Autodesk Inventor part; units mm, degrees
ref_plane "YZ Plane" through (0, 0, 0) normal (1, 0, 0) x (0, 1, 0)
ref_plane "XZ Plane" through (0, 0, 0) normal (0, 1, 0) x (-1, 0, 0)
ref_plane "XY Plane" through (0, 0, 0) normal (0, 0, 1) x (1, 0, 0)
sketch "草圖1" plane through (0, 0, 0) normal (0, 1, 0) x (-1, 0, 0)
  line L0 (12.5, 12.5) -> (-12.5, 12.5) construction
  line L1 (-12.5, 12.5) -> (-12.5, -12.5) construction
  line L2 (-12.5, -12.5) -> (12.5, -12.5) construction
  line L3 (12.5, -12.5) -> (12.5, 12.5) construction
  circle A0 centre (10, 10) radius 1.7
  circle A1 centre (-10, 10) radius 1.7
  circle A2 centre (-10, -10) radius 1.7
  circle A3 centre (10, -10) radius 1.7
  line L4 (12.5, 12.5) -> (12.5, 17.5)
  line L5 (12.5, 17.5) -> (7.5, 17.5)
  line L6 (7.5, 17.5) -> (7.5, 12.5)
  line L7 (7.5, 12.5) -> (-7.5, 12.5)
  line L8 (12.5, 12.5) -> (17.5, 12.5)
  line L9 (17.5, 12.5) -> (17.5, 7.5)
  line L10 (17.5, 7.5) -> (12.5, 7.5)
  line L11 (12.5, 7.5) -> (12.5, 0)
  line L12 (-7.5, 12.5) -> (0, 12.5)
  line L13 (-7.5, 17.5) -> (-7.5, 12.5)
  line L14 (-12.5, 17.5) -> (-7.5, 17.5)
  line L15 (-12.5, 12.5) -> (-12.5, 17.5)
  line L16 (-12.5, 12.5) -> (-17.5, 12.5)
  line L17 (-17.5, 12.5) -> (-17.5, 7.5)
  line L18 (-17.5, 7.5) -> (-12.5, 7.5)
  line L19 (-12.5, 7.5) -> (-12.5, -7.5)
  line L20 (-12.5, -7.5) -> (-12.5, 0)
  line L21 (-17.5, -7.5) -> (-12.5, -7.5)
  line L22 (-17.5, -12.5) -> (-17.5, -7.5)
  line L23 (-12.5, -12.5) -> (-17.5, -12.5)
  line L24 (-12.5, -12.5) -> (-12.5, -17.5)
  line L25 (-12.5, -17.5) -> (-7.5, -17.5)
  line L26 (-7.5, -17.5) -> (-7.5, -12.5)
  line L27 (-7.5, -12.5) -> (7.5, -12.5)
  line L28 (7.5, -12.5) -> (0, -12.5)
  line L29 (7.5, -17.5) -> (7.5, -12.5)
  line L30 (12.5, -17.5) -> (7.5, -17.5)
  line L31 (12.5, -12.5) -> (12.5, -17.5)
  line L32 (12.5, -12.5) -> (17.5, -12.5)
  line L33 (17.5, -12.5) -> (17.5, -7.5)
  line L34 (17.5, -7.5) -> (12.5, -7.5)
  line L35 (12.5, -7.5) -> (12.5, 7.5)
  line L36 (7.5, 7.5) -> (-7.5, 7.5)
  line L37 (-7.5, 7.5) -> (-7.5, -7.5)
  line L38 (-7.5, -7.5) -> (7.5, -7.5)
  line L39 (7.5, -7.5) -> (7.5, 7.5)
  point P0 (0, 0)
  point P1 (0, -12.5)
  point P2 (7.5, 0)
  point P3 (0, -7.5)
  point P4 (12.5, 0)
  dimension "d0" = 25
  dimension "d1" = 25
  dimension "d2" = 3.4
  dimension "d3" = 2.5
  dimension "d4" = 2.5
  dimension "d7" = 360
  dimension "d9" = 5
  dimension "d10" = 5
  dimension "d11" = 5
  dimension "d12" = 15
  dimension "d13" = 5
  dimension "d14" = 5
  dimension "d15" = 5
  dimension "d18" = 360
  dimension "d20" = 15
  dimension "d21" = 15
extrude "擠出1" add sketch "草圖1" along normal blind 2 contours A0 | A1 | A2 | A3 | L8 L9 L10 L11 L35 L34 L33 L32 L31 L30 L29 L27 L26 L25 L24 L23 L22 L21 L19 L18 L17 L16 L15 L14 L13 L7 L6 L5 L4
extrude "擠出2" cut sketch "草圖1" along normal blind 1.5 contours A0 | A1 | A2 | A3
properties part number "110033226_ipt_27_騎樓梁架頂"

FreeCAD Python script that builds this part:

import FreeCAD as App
import Part
import Sketcher
from FreeCAD import Vector

doc = App.newDocument("Part")
body = doc.addObject("PartDesign::Body", "Body")

sketch1 = body.newObject("Sketcher::SketchObject", "Sketch")
sketch1.AttachmentSupport = (doc.getObject("XZ_Plane"), [""])
sketch1.MapMode = "FlatFace"
sketch1.addGeometry([
    Part.LineSegment(Vector(-18, 12, 0), Vector(-12, 12, 0)),
    Part.LineSegment(Vector(-12, 12, 0), Vector(-12, 18, 0)),
    Part.LineSegment(Vector(-12, 18, 0), Vector(-8, 18, 0)),
    Part.LineSegment(Vector(-8, 18, 0), Vector(-8, 12, 0)),
    Part.LineSegment(Vector(-8, 12, 0), Vector(8, 12, 0)),
    Part.LineSegment(Vector(8, 12, 0), Vector(8, 18, 0)),
    Part.LineSegment(Vector(8, 18, 0), Vector(12, 18, 0)),
    Part.LineSegment(Vector(12, 18, 0), Vector(12, 12, 0)),
    Part.LineSegment(Vector(12, 12, 0), Vector(18, 12, 0)),
    Part.LineSegment(Vector(18, 12, 0), Vector(18, 8, 0)),
    Part.LineSegment(Vector(18, 8, 0), Vector(12, 8, 0)),
    Part.LineSegment(Vector(12, 8, 0), Vector(12, -8, 0)),
    Part.LineSegment(Vector(12, -8, 0), Vector(18, -8, 0)),
    Part.LineSegment(Vector(18, -8, 0), Vector(18, -12, 0)),
    Part.LineSegment(Vector(18, -12, 0), Vector(12, -12, 0)),
    Part.LineSegment(Vector(12, -12, 0), Vector(12, -18, 0)),
    Part.LineSegment(Vector(12, -18, 0), Vector(8, -18, 0)),
    Part.LineSegment(Vector(8, -18, 0), Vector(8, -12, 0)),
    Part.LineSegment(Vector(8, -12, 0), Vector(-8, -12, 0)),
    Part.LineSegment(Vector(-8, -12, 0), Vector(-8, -18, 0)),
    Part.LineSegment(Vector(-8, -18, 0), Vector(-12, -18, 0)),
    Part.LineSegment(Vector(-12, -18, 0), Vector(-12, -12, 0)),
    Part.LineSegment(Vector(-12, -12, 0), Vector(-18, -12, 0)),
    Part.LineSegment(Vector(-18, -12, 0), Vector(-18, -8, 0)),
    Part.LineSegment(Vector(-18, -8, 0), Vector(-12, -8, 0)),
    Part.LineSegment(Vector(-12, -8, 0), Vector(-12, 8, 0)),
    Part.LineSegment(Vector(-12, 8, 0), Vector(-18, 8, 0)),
    Part.LineSegment(Vector(-18, 8, 0), Vector(-18, 12, 0)),
    Part.LineSegment(Vector(8, 8, 0), Vector(-8, 8, 0)),
    Part.LineSegment(Vector(-8, 8, 0), Vector(-8, -8, 0)),
    Part.LineSegment(Vector(-8, -8, 0), Vector(8, -8, 0)),
    Part.LineSegment(Vector(8, -8, 0), Vector(8, 8, 0)),
], False)
sketch1.addConstraint([
    Sketcher.Constraint("Coincident", 0, 2, 1, 1),
    Sketcher.Constraint("Coincident", 1, 2, 2, 1),
    Sketcher.Constraint("Coincident", 2, 2, 3, 1),
    Sketcher.Constraint("Coincident", 3, 2, 4, 1),
    Sketcher.Constraint("Coincident", 4, 2, 5, 1),
    Sketcher.Constraint("Coincident", 5, 2, 6, 1),
    Sketcher.Constraint("Coincident", 6, 2, 7, 1),
    Sketcher.Constraint("Coincident", 7, 2, 8, 1),
    Sketcher.Constraint("Coincident", 8, 2, 9, 1),
    Sketcher.Constraint("Coincident", 9, 2, 10, 1),
    Sketcher.Constraint("Coincident", 10, 2, 11, 1),
    Sketcher.Constraint("Coincident", 11, 2, 12, 1),
    Sketcher.Constraint("Coincident", 12, 2, 13, 1),
    Sketcher.Constraint("Coincident", 13, 2, 14, 1),
    Sketcher.Constraint("Coincident", 14, 2, 15, 1),
    Sketcher.Constraint("Coincident", 15, 2, 16, 1),
    Sketcher.Constraint("Coincident", 16, 2, 17, 1),
    Sketcher.Constraint("Coincident", 17, 2, 18, 1),
    Sketcher.Constraint("Coincident", 18, 2, 19, 1),
    Sketcher.Constraint("Coincident", 19, 2, 20, 1),
    Sketcher.Constraint("Coincident", 20, 2, 21, 1),
    Sketcher.Constraint("Coincident", 21, 2, 22, 1),
    Sketcher.Constraint("Coincident", 22, 2, 23, 1),
    Sketcher.Constraint("Coincident", 23, 2, 24, 1),
    Sketcher.Constraint("Coincident", 24, 2, 25, 1),
    Sketcher.Constraint("Coincident", 25, 2, 26, 1),
    Sketcher.Constraint("Coincident", 26, 2, 27, 1),
    Sketcher.Constraint("Coincident", 27, 2, 0, 1),
    Sketcher.Constraint("Coincident", 28, 2, 29, 1),
    Sketcher.Constraint("Coincident", 29, 2, 30, 1),
    Sketcher.Constraint("Coincident", 30, 2, 31, 1),
    Sketcher.Constraint("Coincident", 31, 2, 28, 1),
    Sketcher.Constraint("Horizontal", 0),
    Sketcher.Constraint("Vertical", 1),
    Sketcher.Constraint("Horizontal", 2),
    Sketcher.Constraint("Vertical", 3),
    Sketcher.Constraint("Horizontal", 4),
    Sketcher.Constraint("Vertical", 5),
    Sketcher.Constraint("Horizontal", 6),
    Sketcher.Constraint("Vertical", 7),
    Sketcher.Constraint("Horizontal", 8),
    Sketcher.Constraint("Vertical", 9),
    Sketcher.Constraint("Horizontal", 10),
    Sketcher.Constraint("Vertical", 11),
    Sketcher.Constraint("Horizontal", 12),
    Sketcher.Constraint("Vertical", 13),
    Sketcher.Constraint("Horizontal", 14),
    Sketcher.Constraint("Vertical", 15),
    Sketcher.Constraint("Horizontal", 16),
    Sketcher.Constraint("Vertical", 17),
    Sketcher.Constraint("Horizontal", 18),
    Sketcher.Constraint("Vertical", 19),
    Sketcher.Constraint("Horizontal", 20),
    Sketcher.Constraint("Vertical", 21),
    Sketcher.Constraint("Horizontal", 22),
    Sketcher.Constraint("Vertical", 23),
    Sketcher.Constraint("Horizontal", 24),
    Sketcher.Constraint("Vertical", 25),
    Sketcher.Constraint("Horizontal", 26),
    Sketcher.Constraint("Vertical", 27),
    Sketcher.Constraint("Horizontal", 28),
    Sketcher.Constraint("Vertical", 29),
    Sketcher.Constraint("Horizontal", 30),
    Sketcher.Constraint("Vertical", 31),
    Sketcher.Constraint("Symmetric", 0, 2, 14, 2, -1, 1),
    Sketcher.Constraint("Symmetric", 2, 2, 16, 2, -1, 1),
    Sketcher.Constraint("Symmetric", 4, 2, 18, 2, -1, 1),
    Sketcher.Constraint("Symmetric", 6, 2, 20, 2, -1, 1),
    Sketcher.Constraint("Symmetric", 8, 2, 22, 2, -1, 1),
    Sketcher.Constraint("Symmetric", 10, 2, 24, 2, -1, 1),
    Sketcher.Constraint("Symmetric", 12, 2, 26, 2, -1, 1),
    Sketcher.Constraint("Symmetric", 28, 2, 30, 2, -1, 1),
    Sketcher.Constraint("Symmetric", 2, 2, 5, 2, -2),
    Sketcher.Constraint("Symmetric", 0, 2, 7, 2, -2),
    Sketcher.Constraint("Symmetric", 12, 2, 23, 2, -2),
    Sketcher.Constraint("Horizontal", 0, 2, 3, 2),
    Sketcher.Constraint("Horizontal", 26, 2, 28, 2),
    Sketcher.Constraint("Vertical", 7, 2, 10, 2),
    Sketcher.Constraint("Vertical", 19, 2, 28, 2),
    Sketcher.Constraint("Equal", 0, 2),
    Sketcher.Constraint("Equal", 26, 1),
    Sketcher.Constraint("Equal", 7, 9),
    Sketcher.Constraint("Equal", 30, 11),
    Sketcher.Constraint("DistanceX", 0, 1, 0, 2, 5.0),
    Sketcher.Constraint("DistanceX", 4, 1, 4, 2, 15.0),
])
pad1 = body.newObject("PartDesign::Pad", "Pad")
pad1.Profile = sketch1
pad1.Length = 2
pad1.Reversed = True

sketch2 = body.newObject("Sketcher::SketchObject", "Sketch001")
sketch2.AttachmentSupport = (doc.getObject("XZ_Plane"), [""])
sketch2.MapMode = "FlatFace"
sketch2.addGeometry([
    Part.Circle(Vector(-10, 10, 0), Vector(0, 0, 1), 1.7),
    Part.Circle(Vector(10, 10, 0), Vector(0, 0, 1), 1.7),
    Part.Circle(Vector(10, -10, 0), Vector(0, 0, 1), 1.7),
    Part.Circle(Vector(-10, -10, 0), Vector(0, 0, 1), 1.7),
], False)
sketch2.addConstraint([
    Sketcher.Constraint("Equal", 0, 1),
    Sketcher.Constraint("Equal", 1, 2),
    Sketcher.Constraint("Equal", 2, 3),
    Sketcher.Constraint("Symmetric", 0, 3, 2, 3, -1, 1),
    Sketcher.Constraint("Symmetric", 1, 3, 3, 3, -1, 1),
    Sketcher.Constraint("Symmetric", 0, 3, 1, 3, -2),
    Sketcher.Constraint("Diameter", 0, 3.4),
    Sketcher.Constraint("DistanceX", 0, 3, -1, 1, 10.0),
    Sketcher.Constraint("DistanceY", -1, 1, 0, 3, 10.0),
])
pocket1 = body.newObject("PartDesign::Pocket", "Pocket")
pocket1.Profile = sketch2
pocket1.Length = 1.5

doc.recompute()
